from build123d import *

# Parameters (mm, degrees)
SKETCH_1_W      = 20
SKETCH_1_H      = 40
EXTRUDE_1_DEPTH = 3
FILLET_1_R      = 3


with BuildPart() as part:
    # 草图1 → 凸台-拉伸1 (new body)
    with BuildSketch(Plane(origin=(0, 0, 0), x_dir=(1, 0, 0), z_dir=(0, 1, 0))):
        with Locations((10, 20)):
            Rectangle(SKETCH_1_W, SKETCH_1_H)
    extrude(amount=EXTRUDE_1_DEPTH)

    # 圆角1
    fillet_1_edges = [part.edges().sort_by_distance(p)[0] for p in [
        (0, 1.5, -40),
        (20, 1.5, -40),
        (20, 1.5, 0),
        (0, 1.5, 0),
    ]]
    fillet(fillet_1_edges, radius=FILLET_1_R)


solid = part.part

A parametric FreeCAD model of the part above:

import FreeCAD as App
import Part
import Sketcher


def edges_at(feature, points):
    """Names of the edges that pass closest to the given points."""
    edges = feature.Shape.Edges
    near = lambda p: min(range(len(edges)), key=lambda i: edges[i].distToShape(Part.Vertex(*p))[0])
    return sorted({f"Edge{near(p) + 1}" for p in points})

doc = App.newDocument("Part")
body = doc.addObject("PartDesign::Body", "Body")

# Sketch on XZ plane
sketch1 = body.newObject("Sketcher::SketchObject", "Sketch")
sketch1.AttachmentSupport = (doc.getObject("XZ_Plane"), [""])
sketch1.MapMode = "FlatFace"
sketch1.addGeometry(Part.LineSegment(App.Vector(0, -40, 0), App.Vector(0, 0, 0)), False)
sketch1.addGeometry(Part.LineSegment(App.Vector(0, 0, 0), App.Vector(20, 0, 0)), False)
sketch1.addGeometry(Part.LineSegment(App.Vector(20, 0, 0), App.Vector(20, -40, 0)), False)
sketch1.addGeometry(Part.LineSegment(App.Vector(20, -40, 0), App.Vector(0, -40, 0)), False)
sketch1.addConstraint(Sketcher.Constraint("Coincident", 0, 2, 1, 1))
sketch1.addConstraint(Sketcher.Constraint("Coincident", 1, 2, 2, 1))
sketch1.addConstraint(Sketcher.Constraint("Coincident", 2, 2, 3, 1))
sketch1.addConstraint(Sketcher.Constraint("Coincident", 3, 2, 0, 1))
sketch1.addConstraint(Sketcher.Constraint("Vertical", 0))
sketch1.addConstraint(Sketcher.Constraint("Horizontal", 1))
sketch1.addConstraint(Sketcher.Constraint("Vertical", 2))
sketch1.addConstraint(Sketcher.Constraint("Horizontal", 3))
sketch1.addConstraint(Sketcher.Constraint("Coincident", 0, 2, -1, 1))
sketch1.addConstraint(Sketcher.Constraint("DistanceX", 1, 1, 1, 2, 20.0))
sketch1.addConstraint(Sketcher.Constraint("DistanceY", 0, 1, 0, 2, 40.0))
pad1 = body.newObject("PartDesign::Pad", "Pad")
pad1.Profile = sketch1
pad1.Length = 3
pad1.Reversed = True
doc.recompute()

fillet = body.newObject("PartDesign::Fillet", "Fillet")
fillet.Base = (pad1, edges_at(pad1, [
    (0, 1.5, -40),
    (20, 1.5, -40),
    (20, 1.5, 0),
    (0, 1.5, 0),
]))
fillet.Radius = 3

doc.recompute()
